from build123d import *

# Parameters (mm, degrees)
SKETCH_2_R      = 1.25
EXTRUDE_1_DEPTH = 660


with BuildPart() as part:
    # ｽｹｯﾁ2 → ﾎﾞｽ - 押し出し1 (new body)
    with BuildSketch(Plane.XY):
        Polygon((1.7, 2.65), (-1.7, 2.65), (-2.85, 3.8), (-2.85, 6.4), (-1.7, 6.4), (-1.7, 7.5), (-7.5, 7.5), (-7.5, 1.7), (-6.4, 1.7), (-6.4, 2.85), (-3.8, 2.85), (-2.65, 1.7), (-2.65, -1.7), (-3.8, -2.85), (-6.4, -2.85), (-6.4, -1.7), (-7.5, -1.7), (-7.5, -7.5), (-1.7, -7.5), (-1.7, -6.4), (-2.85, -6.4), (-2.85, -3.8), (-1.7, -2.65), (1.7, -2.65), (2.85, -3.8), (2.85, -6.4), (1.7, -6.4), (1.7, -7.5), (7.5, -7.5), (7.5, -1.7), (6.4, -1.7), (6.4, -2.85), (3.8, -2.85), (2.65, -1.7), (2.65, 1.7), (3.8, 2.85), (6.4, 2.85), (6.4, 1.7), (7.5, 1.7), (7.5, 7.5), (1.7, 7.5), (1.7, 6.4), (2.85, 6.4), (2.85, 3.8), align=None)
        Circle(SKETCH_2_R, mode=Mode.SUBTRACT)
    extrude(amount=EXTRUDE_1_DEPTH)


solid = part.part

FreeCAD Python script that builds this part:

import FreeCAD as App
import Part
import Sketcher
Q = App.Units.Quantity


def add_polygon(sketch, points):
    """Adds a closed chain of lines whose ends are joined by coincident constraints."""
    first, n = sketch.GeometryCount, len(points)
    for a, b in zip(points, points[1:] + points[:1]):
        sketch.addGeometry(Part.LineSegment(App.Vector(*a, 0), App.Vector(*b, 0)), False)
    for i in range(n):
        sketch.addConstraint(Sketcher.Constraint("Coincident", first + i, 2, first + (i + 1) % n, 1))

doc = App.newDocument("Part")
body = doc.addObject("PartDesign::Body", "Body")

# Sketch on XY plane
sketch1 = body.newObject("Sketcher::SketchObject", "Sketch")
sketch1.AttachmentSupport = (doc.getObject("XY_Plane"), [""])
sketch1.MapMode = "FlatFace"
add_polygon(sketch1, [(1.7, 2.65), (-1.7, 2.65), (-2.85, 3.8), (-2.85, 6.4), (-1.7, 6.4), (-1.7, 7.5), (-7.5, 7.5), (-7.5, 1.7), (-6.4, 1.7), (-6.4, 2.85), (-3.8, 2.85), (-2.65, 1.7), (-2.65, -1.7), (-3.8, -2.85), (-6.4, -2.85), (-6.4, -1.7), (-7.5, -1.7), (-7.5, -7.5), (-1.7, -7.5), (-1.7, -6.4), (-2.85, -6.4), (-2.85, -3.8), (-1.7, -2.65), (1.7, -2.65), (2.85, -3.8), (2.85, -6.4), (1.7, -6.4), (1.7, -7.5), (7.5, -7.5), (7.5, -1.7), (6.4, -1.7), (6.4, -2.85), (3.8, -2.85), (2.65, -1.7), (2.65, 1.7), (3.8, 2.85), (6.4, 2.85), (6.4, 1.7), (7.5, 1.7), (7.5, 7.5), (1.7, 7.5), (1.7, 6.4), (2.85, 6.4), (2.85, 3.8)])  # lines 0-43
sketch1.addGeometry(Part.Circle(App.Vector(0, 0, 0), App.Vector(0, 0, 1), 1.25), False)  # 44
sketch1.addConstraint(Sketcher.Constraint("Horizontal", 0))
sketch1.addConstraint(Sketcher.Constraint("Vertical", 2))
sketch1.addConstraint(Sketcher.Constraint("Horizontal", 3))
sketch1.addConstraint(Sketcher.Constraint("Vertical", 4))
sketch1.addConstraint(Sketcher.Constraint("Horizontal", 5))
sketch1.addConstraint(Sketcher.Constraint("Vertical", 6))
sketch1.addConstraint(Sketcher.Constraint("Horizontal", 7))
sketch1.addConstraint(Sketcher.Constraint("Vertical", 8))
sketch1.addConstraint(Sketcher.Constraint("Horizontal", 9))
sketch1.addConstraint(Sketcher.Constraint("Vertical", 11))
sketch1.addConstraint(Sketcher.Constraint("Horizontal", 13))
sketch1.addConstraint(Sketcher.Constraint("Vertical", 14))
sketch1.addConstraint(Sketcher.Constraint("Horizontal", 15))
sketch1.addConstraint(Sketcher.Constraint("Vertical", 16))
sketch1.addConstraint(Sketcher.Constraint("Horizontal", 17))
sketch1.addConstraint(Sketcher.Constraint("Vertical", 18))
sketch1.addConstraint(Sketcher.Constraint("Horizontal", 19))
sketch1.addConstraint(Sketcher.Constraint("Vertical", 20))
sketch1.addConstraint(Sketcher.Constraint("Horizontal", 22))
sketch1.addConstraint(Sketcher.Constraint("Vertical", 24))
sketch1.addConstraint(Sketcher.Constraint("Horizontal", 25))
sketch1.addConstraint(Sketcher.Constraint("Vertical", 26))
sketch1.addConstraint(Sketcher.Constraint("Horizontal", 27))
sketch1.addConstraint(Sketcher.Constraint("Vertical", 28))
sketch1.addConstraint(Sketcher.Constraint("Horizontal", 29))
sketch1.addConstraint(Sketcher.Constraint("Vertical", 30))
sketch1.addConstraint(Sketcher.Constraint("Horizontal", 31))
sketch1.addConstraint(Sketcher.Constraint("Vertical", 33))
sketch1.addConstraint(Sketcher.Constraint("Horizontal", 35))
sketch1.addConstraint(Sketcher.Constraint("Vertical", 36))
sketch1.addConstraint(Sketcher.Constraint("Horizontal", 37))
sketch1.addConstraint(Sketcher.Constraint("Vertical", 38))
sketch1.addConstraint(Sketcher.Constraint("Horizontal", 39))
sketch1.addConstraint(Sketcher.Constraint("Vertical", 40))
sketch1.addConstraint(Sketcher.Constraint("Horizontal", 41))
sketch1.addConstraint(Sketcher.Constraint("Vertical", 42))
sketch1.addConstraint(Sketcher.Constraint("Coincident", 44, 3, -1, 1))
sketch1.addConstraint(Sketcher.Constraint("Symmetric", 0, 2, 22, 2, -1, 1))
sketch1.addConstraint(Sketcher.Constraint("Symmetric", 1, 2, 23, 2, -1, 1))
sketch1.addConstraint(Sketcher.Constraint("Symmetric", 3, 2, 25, 2, -1, 1))
sketch1.addConstraint(Sketcher.Constraint("Symmetric", 5, 2, 27, 2, -1, 1))
sketch1.addConstraint(Sketcher.Constraint("Symmetric", 7, 2, 29, 2, -1, 1))
sketch1.addConstraint(Sketcher.Constraint("Symmetric", 9, 2, 31, 2, -1, 1))
sketch1.addConstraint(Sketcher.Constraint("Symmetric", 10, 2, 32, 2, -1, 1))
sketch1.addConstraint(Sketcher.Constraint("Symmetric", 12, 2, 34, 2, -1, 1))
sketch1.addConstraint(Sketcher.Constraint("Symmetric", 14, 2, 36, 2, -1, 1))
sketch1.addConstraint(Sketcher.Constraint("Symmetric", 16, 2, 38, 2, -1, 1))
sketch1.addConstraint(Sketcher.Constraint("Symmetric", 18, 2, 40, 2, -1, 1))
sketch1.addConstraint(Sketcher.Constraint("Symmetric", 20, 2, 42, 2, -1, 1))
sketch1.addConstraint(Sketcher.Constraint("Symmetric", 20, 2, 23, 2, -2))
sketch1.addConstraint(Sketcher.Constraint("Symmetric", 18, 2, 25, 2, -2))
sketch1.addConstraint(Sketcher.Constraint("Symmetric", 16, 2, 27, 2, -2))
sketch1.addConstraint(Sketcher.Constraint("Symmetric", 14, 2, 29, 2, -2))
sketch1.addConstraint(Sketcher.Constraint("Symmetric", 12, 2, 31, 2, -2))
sketch1.addConstraint(Sketcher.Constraint("Parallel", 1, 10))
sketch1.addConstraint(Sketcher.Constraint("Perpendicular", 10, 12))
sketch1.addConstraint(Sketcher.Constraint("Parallel", 12, 21))
sketch1.addConstraint(Sketcher.Constraint("Perpendicular", 32, 34))
sketch1.addConstraint(Sketcher.Constraint("Parallel", 34, 43))
sketch1.addConstraint(Sketcher.Constraint("Horizontal", 7, 2, 10, 2))
sketch1.addConstraint(Sketcher.Constraint("Horizontal", 11, 2, 14, 2))
sketch1.addConstraint(Sketcher.Constraint("Vertical", 0, 2, 3, 2))
sketch1.addConstraint(Sketcher.Constraint("Equal", 35, 2))
sketch1.addConstraint(Sketcher.Constraint("Equal", 37, 4))
sketch1.addConstraint(Sketcher.Constraint("Equal", 39, 6))
sketch1.addConstraint(Sketcher.Constraint("Equal", 41, 8))
sketch1.addConstraint(Sketcher.Constraint("Equal", 22, 11))
sketch1.addConstraint(Sketcher.Constraint("Diameter", 44, Q("2.5 mm")))
sketch1.addConstraint(Sketcher.Constraint("DistanceX", 0, 2, 0, 1, Q("3.4 mm")))
sketch1.addConstraint(Sketcher.Constraint("DistanceX", 5, 2, 5, 1, Q("5.8 mm")))
sketch1.addConstraint(Sketcher.Constraint("DistanceX", 7, 1, 7, 2, Q("1.1 mm")))
sketch1.addConstraint(Sketcher.Constraint("DistanceX", 9, 1, 9, 2, Q("2.6 mm")))
sketch1.addConstraint(Sketcher.Constraint("DistanceX", 3, 1, 3, 2, Q("1.15 mm")))
pad1 = body.newObject("PartDesign::Pad", "Pad")
pad1.Profile = sketch1
pad1.Length = 660

doc.recompute()
